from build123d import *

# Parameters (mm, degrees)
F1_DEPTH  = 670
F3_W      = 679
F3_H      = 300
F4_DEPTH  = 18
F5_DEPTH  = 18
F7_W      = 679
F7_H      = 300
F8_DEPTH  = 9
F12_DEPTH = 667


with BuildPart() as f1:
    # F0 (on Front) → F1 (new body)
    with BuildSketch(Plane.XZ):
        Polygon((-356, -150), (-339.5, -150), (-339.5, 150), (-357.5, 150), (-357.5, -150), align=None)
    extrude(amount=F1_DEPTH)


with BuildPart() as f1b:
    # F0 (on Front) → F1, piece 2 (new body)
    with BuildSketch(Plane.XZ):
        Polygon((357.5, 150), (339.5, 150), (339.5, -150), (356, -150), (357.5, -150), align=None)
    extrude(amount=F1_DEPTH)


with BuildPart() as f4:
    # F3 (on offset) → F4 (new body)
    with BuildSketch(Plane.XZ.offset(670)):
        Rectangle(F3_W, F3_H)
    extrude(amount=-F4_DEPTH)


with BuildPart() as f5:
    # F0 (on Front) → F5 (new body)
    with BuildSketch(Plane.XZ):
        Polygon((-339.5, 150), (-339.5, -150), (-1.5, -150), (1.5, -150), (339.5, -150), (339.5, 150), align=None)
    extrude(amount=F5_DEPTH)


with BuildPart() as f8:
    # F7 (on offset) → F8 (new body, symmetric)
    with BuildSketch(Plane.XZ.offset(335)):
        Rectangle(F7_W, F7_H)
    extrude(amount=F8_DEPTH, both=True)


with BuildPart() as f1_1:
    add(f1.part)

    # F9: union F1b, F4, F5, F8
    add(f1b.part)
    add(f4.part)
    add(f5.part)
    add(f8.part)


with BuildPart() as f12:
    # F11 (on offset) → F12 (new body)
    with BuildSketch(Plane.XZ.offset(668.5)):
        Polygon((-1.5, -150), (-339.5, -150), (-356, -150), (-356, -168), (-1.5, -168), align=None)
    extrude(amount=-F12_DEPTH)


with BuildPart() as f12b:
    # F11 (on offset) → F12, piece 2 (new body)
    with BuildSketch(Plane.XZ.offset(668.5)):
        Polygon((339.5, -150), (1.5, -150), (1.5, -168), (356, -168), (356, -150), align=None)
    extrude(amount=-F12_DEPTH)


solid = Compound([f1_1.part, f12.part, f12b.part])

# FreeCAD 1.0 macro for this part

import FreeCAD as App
import Part
import Sketcher
from FreeCAD import Vector
Q = App.Units.Quantity

doc = App.newDocument("Part")
params = doc.addObject("Spreadsheet::Sheet", "Params")
for row, (alias, value) in enumerate([
    ("sketch1_width", "18 mm"),
    ("sketch1_height", "300 mm"),
    ("pad1_length", "670 mm"),
    ("sketch2_width", "18 mm"),
    ("sketch2_height", "300 mm"),
    ("pad2_length", "670 mm"),
    ("sketch3_width", "679 mm"),
    ("sketch3_height", "300 mm"),
    ("pad3_length", "18 mm"),
    ("sketch4_width", "679 mm"),
    ("sketch4_height", "300 mm"),
    ("pad4_length", "18 mm"),
    ("sketch5_width", "679 mm"),
    ("sketch5_height", "300 mm"),
    ("pad5_length", "18 mm"),
    ("sketch6_height", "18 mm"),
    ("sketch6_width", "354.5 mm"),
    ("pad6_length", "667 mm"),
    ("sketch7_height", "18 mm"),
    ("sketch7_width", "354.5 mm"),
    ("pad7_length", "667 mm"),
], start=1):
    params.set(f"A{row}", alias)
    params.set(f"B{row}", "=" + value)
    params.setAlias(f"B{row}", alias)

body = doc.addObject("PartDesign::Body", "Body")

sketch1 = body.newObject("Sketcher::SketchObject", "Sketch")
sketch1.AttachmentSupport = (doc.getObject("XZ_Plane"), [""])
sketch1.MapMode = "FlatFace"
sketch1.addGeometry([
    Part.LineSegment(Vector(-339.5, -150, 0), Vector(-339.5, 150, 0)),
    Part.LineSegment(Vector(-339.5, 150, 0), Vector(-357.5, 150, 0)),
    Part.LineSegment(Vector(-357.5, 150, 0), Vector(-357.5, -150, 0)),
    Part.LineSegment(Vector(-357.5, -150, 0), Vector(-339.5, -150, 0)),
], False)
sketch1.addConstraint([
    Sketcher.Constraint("Coincident", 0, 2, 1, 1),
    Sketcher.Constraint("Coincident", 1, 2, 2, 1),
    Sketcher.Constraint("Coincident", 2, 2, 3, 1),
    Sketcher.Constraint("Coincident", 3, 2, 0, 1),
    Sketcher.Constraint("Vertical", 0),
    Sketcher.Constraint("Horizontal", 1),
    Sketcher.Constraint("Vertical", 2),
    Sketcher.Constraint("Horizontal", 3),
    Sketcher.Constraint("DistanceX", 1, 2, 1, 1, Q("18 mm")),
    Sketcher.Constraint("DistanceY", 0, 1, 0, 2, Q("300 mm")),
    Sketcher.Constraint("DistanceY", -1, 1, 0, 2, Q("150 mm")),
    Sketcher.Constraint("DistanceX", 0, 2, -1, 1, Q("339.5 mm")),
])
sketch1.setExpression("Constraints[8]", "Params.sketch1_width")
sketch1.setExpression("Constraints[9]", "Params.sketch1_height")
pad1 = body.newObject("PartDesign::Pad", "Pad")
pad1.Profile = sketch1
pad1.setExpression("Length", "Params.pad1_length")
body2 = doc.addObject("PartDesign::Body", "Body001")

sketch2 = body2.newObject("Sketcher::SketchObject", "Sketch001")
sketch2.AttachmentSupport = (doc.getObject("XZ_Plane001"), [""])
sketch2.MapMode = "FlatFace"
sketch2.addGeometry([
    Part.LineSegment(Vector(357.5, 150, 0), Vector(339.5, 150, 0)),
    Part.LineSegment(Vector(339.5, 150, 0), Vector(339.5, -150, 0)),
    Part.LineSegment(Vector(339.5, -150, 0), Vector(357.5, -150, 0)),
    Part.LineSegment(Vector(357.5, -150, 0), Vector(357.5, 150, 0)),
], False)
sketch2.addConstraint([
    Sketcher.Constraint("Coincident", 0, 2, 1, 1),
    Sketcher.Constraint("Coincident", 1, 2, 2, 1),
    Sketcher.Constraint("Coincident", 2, 2, 3, 1),
    Sketcher.Constraint("Coincident", 3, 2, 0, 1),
    Sketcher.Constraint("Horizontal", 0),
    Sketcher.Constraint("Vertical", 1),
    Sketcher.Constraint("Horizontal", 2),
    Sketcher.Constraint("Vertical", 3),
    Sketcher.Constraint("DistanceX", 0, 2, 0, 1, Q("18 mm")),
    Sketcher.Constraint("DistanceY", 1, 2, 1, 1, Q("300 mm")),
    Sketcher.Constraint("DistanceY", -1, 1, 0, 2, Q("150 mm")),
    Sketcher.Constraint("DistanceX", -1, 1, 0, 2, Q("339.5 mm")),
])
sketch2.setExpression("Constraints[8]", "Params.sketch2_width")
sketch2.setExpression("Constraints[9]", "Params.sketch2_height")
pad2 = body2.newObject("PartDesign::Pad", "Pad001")
pad2.Profile = sketch2
pad2.setExpression("Length", "Params.pad2_length")
body3 = doc.addObject("PartDesign::Body", "Body002")

sketch3 = body3.newObject("Sketcher::SketchObject", "Sketch002")
sketch3.AttachmentSupport = (doc.getObject("XZ_Plane002"), [""])
sketch3.MapMode = "FlatFace"
sketch3.AttachmentOffset = App.Placement(Vector(0, 0, 670), App.Rotation())
sketch3.addGeometry([
    Part.LineSegment(Vector(-339.5, 150, 0), Vector(-339.5, -150, 0)),
    Part.LineSegment(Vector(-339.5, -150, 0), Vector(339.5, -150, 0)),
    Part.LineSegment(Vector(339.5, -150, 0), Vector(339.5, 150, 0)),
    Part.LineSegment(Vector(339.5, 150, 0), Vector(-339.5, 150, 0)),
], False)
sketch3.addConstraint([
    Sketcher.Constraint("Coincident", 0, 2, 1, 1),
    Sketcher.Constraint("Coincident", 1, 2, 2, 1),
    Sketcher.Constraint("Coincident", 2, 2, 3, 1),
    Sketcher.Constraint("Coincident", 3, 2, 0, 1),
    Sketcher.Constraint("Vertical", 0),
    Sketcher.Constraint("Horizontal", 1),
    Sketcher.Constraint("Vertical", 2),
    Sketcher.Constraint("Horizontal", 3),
    Sketcher.Constraint("Symmetric", 0, 2, 2, 2, -1, 1),
    Sketcher.Constraint("DistanceX", 1, 1, 1, 2, Q("679 mm")),
    Sketcher.Constraint("DistanceY", 0, 2, 0, 1, Q("300 mm")),
])
sketch3.setExpression("Constraints[9]", "Params.sketch3_width")
sketch3.setExpression("Constraints[10]", "Params.sketch3_height")
pad3 = body3.newObject("PartDesign::Pad", "Pad002")
pad3.Profile = sketch3
pad3.setExpression("Length", "Params.pad3_length")
pad3.Reversed = True
body4 = doc.addObject("PartDesign::Body", "Body003")

sketch4 = body4.newObject("Sketcher::SketchObject", "Sketch003")
sketch4.AttachmentSupport = (doc.getObject("XZ_Plane003"), [""])
sketch4.MapMode = "FlatFace"
sketch4.addGeometry([
    Part.LineSegment(Vector(-339.5, 150, 0), Vector(-339.5, -150, 0)),
    Part.LineSegment(Vector(-339.5, -150, 0), Vector(339.5, -150, 0)),
    Part.LineSegment(Vector(339.5, -150, 0), Vector(339.5, 150, 0)),
    Part.LineSegment(Vector(339.5, 150, 0), Vector(-339.5, 150, 0)),
], False)
sketch4.addConstraint([
    Sketcher.Constraint("Coincident", 0, 2, 1, 1),
    Sketcher.Constraint("Coincident", 1, 2, 2, 1),
    Sketcher.Constraint("Coincident", 2, 2, 3, 1),
    Sketcher.Constraint("Coincident", 3, 2, 0, 1),
    Sketcher.Constraint("Vertical", 0),
    Sketcher.Constraint("Horizontal", 1),
    Sketcher.Constraint("Vertical", 2),
    Sketcher.Constraint("Horizontal", 3),
    Sketcher.Constraint("Symmetric", 0, 2, 2, 2, -1, 1),
    Sketcher.Constraint("DistanceX", 1, 1, 1, 2, Q("679 mm")),
    Sketcher.Constraint("DistanceY", 0, 2, 0, 1, Q("300 mm")),
])
sketch4.setExpression("Constraints[9]", "Params.sketch4_width")
sketch4.setExpression("Constraints[10]", "Params.sketch4_height")
pad4 = body4.newObject("PartDesign::Pad", "Pad003")
pad4.Profile = sketch4
pad4.setExpression("Length", "Params.pad4_length")
body5 = doc.addObject("PartDesign::Body", "Body004")

sketch5 = body5.newObject("Sketcher::SketchObject", "Sketch004")
sketch5.AttachmentSupport = (doc.getObject("XZ_Plane004"), [""])
sketch5.MapMode = "FlatFace"
sketch5.AttachmentOffset = App.Placement(Vector(0, 0, 335), App.Rotation())
sketch5.addGeometry([
    Part.LineSegment(Vector(-339.5, 150, 0), Vector(-339.5, -150, 0)),
    Part.LineSegment(Vector(-339.5, -150, 0), Vector(339.5, -150, 0)),
    Part.LineSegment(Vector(339.5, -150, 0), Vector(339.5, 150, 0)),
    Part.LineSegment(Vector(339.5, 150, 0), Vector(-339.5, 150, 0)),
], False)
sketch5.addConstraint([
    Sketcher.Constraint("Coincident", 0, 2, 1, 1),
    Sketcher.Constraint("Coincident", 1, 2, 2, 1),
    Sketcher.Constraint("Coincident", 2, 2, 3, 1),
    Sketcher.Constraint("Coincident", 3, 2, 0, 1),
    Sketcher.Constraint("Vertical", 0),
    Sketcher.Constraint("Horizontal", 1),
    Sketcher.Constraint("Vertical", 2),
    Sketcher.Constraint("Horizontal", 3),
    Sketcher.Constraint("Symmetric", 0, 2, 2, 2, -1, 1),
    Sketcher.Constraint("DistanceX", 1, 1, 1, 2, Q("679 mm")),
    Sketcher.Constraint("DistanceY", 0, 2, 0, 1, Q("300 mm")),
])
sketch5.setExpression("Constraints[9]", "Params.sketch5_width")
sketch5.setExpression("Constraints[10]", "Params.sketch5_height")
pad5 = body5.newObject("PartDesign::Pad", "Pad004")
pad5.Profile = sketch5
pad5.setExpression("Length", "Params.pad5_length")
pad5.Midplane = True
body.AllowCompound = True
doc.recompute()

boolean = body.newObject("PartDesign::Boolean", "Boolean")
boolean.Type = "Fuse"
boolean.addObjects([body2])
doc.recompute()

boolean2 = body.newObject("PartDesign::Boolean", "Boolean001")
boolean2.Type = "Fuse"
boolean2.addObjects([body3])
doc.recompute()

boolean3 = body.newObject("PartDesign::Boolean", "Boolean002")
boolean3.Type = "Fuse"
boolean3.addObjects([body4])
doc.recompute()

boolean4 = body.newObject("PartDesign::Boolean", "Boolean003")
boolean4.Type = "Fuse"
boolean4.addObjects([body5])
body6 = doc.addObject("PartDesign::Body", "Body005")

sketch6 = body6.newObject("Sketcher::SketchObject", "Sketch005")
sketch6.AttachmentSupport = (doc.getObject("XZ_Plane005"), [""])
sketch6.MapMode = "FlatFace"
sketch6.AttachmentOffset = App.Placement(Vector(0, 0, 668.5), App.Rotation())
sketch6.addGeometry([
    Part.LineSegment(Vector(-1.5, -150, 0), Vector(-356, -150, 0)),
    Part.LineSegment(Vector(-356, -150, 0), Vector(-356, -168, 0)),
    Part.LineSegment(Vector(-356, -168, 0), Vector(-1.5, -168, 0)),
    Part.LineSegment(Vector(-1.5, -168, 0), Vector(-1.5, -150, 0)),
], False)
sketch6.addConstraint([
    Sketcher.Constraint("Coincident", 0, 2, 1, 1),
    Sketcher.Constraint("Coincident", 1, 2, 2, 1),
    Sketcher.Constraint("Coincident", 2, 2, 3, 1),
    Sketcher.Constraint("Coincident", 3, 2, 0, 1),
    Sketcher.Constraint("Horizontal", 0),
    Sketcher.Constraint("Vertical", 1),
    Sketcher.Constraint("Horizontal", 2),
    Sketcher.Constraint("Vertical", 3),
    Sketcher.Constraint("DistanceY", 1, 2, 1, 1, Q("18 mm")),
    Sketcher.Constraint("DistanceX", 0, 2, 0, 1, Q("354.5 mm")),
    Sketcher.Constraint("DistanceX", 0, 2, -1, 1, Q("356 mm")),
    Sketcher.Constraint("DistanceY", 0, 2, -1, 1, Q("150 mm")),
])
sketch6.setExpression("Constraints[8]", "Params.sketch6_height")
sketch6.setExpression("Constraints[9]", "Params.sketch6_width")
pad6 = body6.newObject("PartDesign::Pad", "Pad005")
pad6.Profile = sketch6
pad6.setExpression("Length", "Params.pad6_length")
pad6.Reversed = True
body7 = doc.addObject("PartDesign::Body", "Body006")

sketch7 = body7.newObject("Sketcher::SketchObject", "Sketch006")
sketch7.AttachmentSupport = (doc.getObject("XZ_Plane006"), [""])
sketch7.MapMode = "FlatFace"
sketch7.AttachmentOffset = App.Placement(Vector(0, 0, 668.5), App.Rotation())
sketch7.addGeometry([
    Part.LineSegment(Vector(1.5, -150, 0), Vector(1.5, -168, 0)),
    Part.LineSegment(Vector(1.5, -168, 0), Vector(356, -168, 0)),
    Part.LineSegment(Vector(356, -168, 0), Vector(356, -150, 0)),
    Part.LineSegment(Vector(356, -150, 0), Vector(1.5, -150, 0)),
], False)
sketch7.addConstraint([
    Sketcher.Constraint("Coincident", 0, 2, 1, 1),
    Sketcher.Constraint("Coincident", 1, 2, 2, 1),
    Sketcher.Constraint("Coincident", 2, 2, 3, 1),
    Sketcher.Constraint("Coincident", 3, 2, 0, 1),
    Sketcher.Constraint("Vertical", 0),
    Sketcher.Constraint("Horizontal", 1),
    Sketcher.Constraint("Vertical", 2),
    Sketcher.Constraint("Horizontal", 3),
    Sketcher.Constraint("DistanceY", 0, 2, 0, 1, Q("18 mm")),
    Sketcher.Constraint("DistanceX", 1, 1, 1, 2, Q("354.5 mm")),
    Sketcher.Constraint("DistanceY", 0, 2, -1, 1, Q("168 mm")),
    Sketcher.Constraint("DistanceX", -1, 1, 1, 2, Q("356 mm")),
])
sketch7.setExpression("Constraints[8]", "Params.sketch7_height")
sketch7.setExpression("Constraints[9]", "Params.sketch7_width")
pad7 = body7.newObject("PartDesign::Pad", "Pad006")
pad7.Profile = sketch7
pad7.setExpression("Length", "Params.pad7_length")
pad7.Reversed = True

doc.recompute()
